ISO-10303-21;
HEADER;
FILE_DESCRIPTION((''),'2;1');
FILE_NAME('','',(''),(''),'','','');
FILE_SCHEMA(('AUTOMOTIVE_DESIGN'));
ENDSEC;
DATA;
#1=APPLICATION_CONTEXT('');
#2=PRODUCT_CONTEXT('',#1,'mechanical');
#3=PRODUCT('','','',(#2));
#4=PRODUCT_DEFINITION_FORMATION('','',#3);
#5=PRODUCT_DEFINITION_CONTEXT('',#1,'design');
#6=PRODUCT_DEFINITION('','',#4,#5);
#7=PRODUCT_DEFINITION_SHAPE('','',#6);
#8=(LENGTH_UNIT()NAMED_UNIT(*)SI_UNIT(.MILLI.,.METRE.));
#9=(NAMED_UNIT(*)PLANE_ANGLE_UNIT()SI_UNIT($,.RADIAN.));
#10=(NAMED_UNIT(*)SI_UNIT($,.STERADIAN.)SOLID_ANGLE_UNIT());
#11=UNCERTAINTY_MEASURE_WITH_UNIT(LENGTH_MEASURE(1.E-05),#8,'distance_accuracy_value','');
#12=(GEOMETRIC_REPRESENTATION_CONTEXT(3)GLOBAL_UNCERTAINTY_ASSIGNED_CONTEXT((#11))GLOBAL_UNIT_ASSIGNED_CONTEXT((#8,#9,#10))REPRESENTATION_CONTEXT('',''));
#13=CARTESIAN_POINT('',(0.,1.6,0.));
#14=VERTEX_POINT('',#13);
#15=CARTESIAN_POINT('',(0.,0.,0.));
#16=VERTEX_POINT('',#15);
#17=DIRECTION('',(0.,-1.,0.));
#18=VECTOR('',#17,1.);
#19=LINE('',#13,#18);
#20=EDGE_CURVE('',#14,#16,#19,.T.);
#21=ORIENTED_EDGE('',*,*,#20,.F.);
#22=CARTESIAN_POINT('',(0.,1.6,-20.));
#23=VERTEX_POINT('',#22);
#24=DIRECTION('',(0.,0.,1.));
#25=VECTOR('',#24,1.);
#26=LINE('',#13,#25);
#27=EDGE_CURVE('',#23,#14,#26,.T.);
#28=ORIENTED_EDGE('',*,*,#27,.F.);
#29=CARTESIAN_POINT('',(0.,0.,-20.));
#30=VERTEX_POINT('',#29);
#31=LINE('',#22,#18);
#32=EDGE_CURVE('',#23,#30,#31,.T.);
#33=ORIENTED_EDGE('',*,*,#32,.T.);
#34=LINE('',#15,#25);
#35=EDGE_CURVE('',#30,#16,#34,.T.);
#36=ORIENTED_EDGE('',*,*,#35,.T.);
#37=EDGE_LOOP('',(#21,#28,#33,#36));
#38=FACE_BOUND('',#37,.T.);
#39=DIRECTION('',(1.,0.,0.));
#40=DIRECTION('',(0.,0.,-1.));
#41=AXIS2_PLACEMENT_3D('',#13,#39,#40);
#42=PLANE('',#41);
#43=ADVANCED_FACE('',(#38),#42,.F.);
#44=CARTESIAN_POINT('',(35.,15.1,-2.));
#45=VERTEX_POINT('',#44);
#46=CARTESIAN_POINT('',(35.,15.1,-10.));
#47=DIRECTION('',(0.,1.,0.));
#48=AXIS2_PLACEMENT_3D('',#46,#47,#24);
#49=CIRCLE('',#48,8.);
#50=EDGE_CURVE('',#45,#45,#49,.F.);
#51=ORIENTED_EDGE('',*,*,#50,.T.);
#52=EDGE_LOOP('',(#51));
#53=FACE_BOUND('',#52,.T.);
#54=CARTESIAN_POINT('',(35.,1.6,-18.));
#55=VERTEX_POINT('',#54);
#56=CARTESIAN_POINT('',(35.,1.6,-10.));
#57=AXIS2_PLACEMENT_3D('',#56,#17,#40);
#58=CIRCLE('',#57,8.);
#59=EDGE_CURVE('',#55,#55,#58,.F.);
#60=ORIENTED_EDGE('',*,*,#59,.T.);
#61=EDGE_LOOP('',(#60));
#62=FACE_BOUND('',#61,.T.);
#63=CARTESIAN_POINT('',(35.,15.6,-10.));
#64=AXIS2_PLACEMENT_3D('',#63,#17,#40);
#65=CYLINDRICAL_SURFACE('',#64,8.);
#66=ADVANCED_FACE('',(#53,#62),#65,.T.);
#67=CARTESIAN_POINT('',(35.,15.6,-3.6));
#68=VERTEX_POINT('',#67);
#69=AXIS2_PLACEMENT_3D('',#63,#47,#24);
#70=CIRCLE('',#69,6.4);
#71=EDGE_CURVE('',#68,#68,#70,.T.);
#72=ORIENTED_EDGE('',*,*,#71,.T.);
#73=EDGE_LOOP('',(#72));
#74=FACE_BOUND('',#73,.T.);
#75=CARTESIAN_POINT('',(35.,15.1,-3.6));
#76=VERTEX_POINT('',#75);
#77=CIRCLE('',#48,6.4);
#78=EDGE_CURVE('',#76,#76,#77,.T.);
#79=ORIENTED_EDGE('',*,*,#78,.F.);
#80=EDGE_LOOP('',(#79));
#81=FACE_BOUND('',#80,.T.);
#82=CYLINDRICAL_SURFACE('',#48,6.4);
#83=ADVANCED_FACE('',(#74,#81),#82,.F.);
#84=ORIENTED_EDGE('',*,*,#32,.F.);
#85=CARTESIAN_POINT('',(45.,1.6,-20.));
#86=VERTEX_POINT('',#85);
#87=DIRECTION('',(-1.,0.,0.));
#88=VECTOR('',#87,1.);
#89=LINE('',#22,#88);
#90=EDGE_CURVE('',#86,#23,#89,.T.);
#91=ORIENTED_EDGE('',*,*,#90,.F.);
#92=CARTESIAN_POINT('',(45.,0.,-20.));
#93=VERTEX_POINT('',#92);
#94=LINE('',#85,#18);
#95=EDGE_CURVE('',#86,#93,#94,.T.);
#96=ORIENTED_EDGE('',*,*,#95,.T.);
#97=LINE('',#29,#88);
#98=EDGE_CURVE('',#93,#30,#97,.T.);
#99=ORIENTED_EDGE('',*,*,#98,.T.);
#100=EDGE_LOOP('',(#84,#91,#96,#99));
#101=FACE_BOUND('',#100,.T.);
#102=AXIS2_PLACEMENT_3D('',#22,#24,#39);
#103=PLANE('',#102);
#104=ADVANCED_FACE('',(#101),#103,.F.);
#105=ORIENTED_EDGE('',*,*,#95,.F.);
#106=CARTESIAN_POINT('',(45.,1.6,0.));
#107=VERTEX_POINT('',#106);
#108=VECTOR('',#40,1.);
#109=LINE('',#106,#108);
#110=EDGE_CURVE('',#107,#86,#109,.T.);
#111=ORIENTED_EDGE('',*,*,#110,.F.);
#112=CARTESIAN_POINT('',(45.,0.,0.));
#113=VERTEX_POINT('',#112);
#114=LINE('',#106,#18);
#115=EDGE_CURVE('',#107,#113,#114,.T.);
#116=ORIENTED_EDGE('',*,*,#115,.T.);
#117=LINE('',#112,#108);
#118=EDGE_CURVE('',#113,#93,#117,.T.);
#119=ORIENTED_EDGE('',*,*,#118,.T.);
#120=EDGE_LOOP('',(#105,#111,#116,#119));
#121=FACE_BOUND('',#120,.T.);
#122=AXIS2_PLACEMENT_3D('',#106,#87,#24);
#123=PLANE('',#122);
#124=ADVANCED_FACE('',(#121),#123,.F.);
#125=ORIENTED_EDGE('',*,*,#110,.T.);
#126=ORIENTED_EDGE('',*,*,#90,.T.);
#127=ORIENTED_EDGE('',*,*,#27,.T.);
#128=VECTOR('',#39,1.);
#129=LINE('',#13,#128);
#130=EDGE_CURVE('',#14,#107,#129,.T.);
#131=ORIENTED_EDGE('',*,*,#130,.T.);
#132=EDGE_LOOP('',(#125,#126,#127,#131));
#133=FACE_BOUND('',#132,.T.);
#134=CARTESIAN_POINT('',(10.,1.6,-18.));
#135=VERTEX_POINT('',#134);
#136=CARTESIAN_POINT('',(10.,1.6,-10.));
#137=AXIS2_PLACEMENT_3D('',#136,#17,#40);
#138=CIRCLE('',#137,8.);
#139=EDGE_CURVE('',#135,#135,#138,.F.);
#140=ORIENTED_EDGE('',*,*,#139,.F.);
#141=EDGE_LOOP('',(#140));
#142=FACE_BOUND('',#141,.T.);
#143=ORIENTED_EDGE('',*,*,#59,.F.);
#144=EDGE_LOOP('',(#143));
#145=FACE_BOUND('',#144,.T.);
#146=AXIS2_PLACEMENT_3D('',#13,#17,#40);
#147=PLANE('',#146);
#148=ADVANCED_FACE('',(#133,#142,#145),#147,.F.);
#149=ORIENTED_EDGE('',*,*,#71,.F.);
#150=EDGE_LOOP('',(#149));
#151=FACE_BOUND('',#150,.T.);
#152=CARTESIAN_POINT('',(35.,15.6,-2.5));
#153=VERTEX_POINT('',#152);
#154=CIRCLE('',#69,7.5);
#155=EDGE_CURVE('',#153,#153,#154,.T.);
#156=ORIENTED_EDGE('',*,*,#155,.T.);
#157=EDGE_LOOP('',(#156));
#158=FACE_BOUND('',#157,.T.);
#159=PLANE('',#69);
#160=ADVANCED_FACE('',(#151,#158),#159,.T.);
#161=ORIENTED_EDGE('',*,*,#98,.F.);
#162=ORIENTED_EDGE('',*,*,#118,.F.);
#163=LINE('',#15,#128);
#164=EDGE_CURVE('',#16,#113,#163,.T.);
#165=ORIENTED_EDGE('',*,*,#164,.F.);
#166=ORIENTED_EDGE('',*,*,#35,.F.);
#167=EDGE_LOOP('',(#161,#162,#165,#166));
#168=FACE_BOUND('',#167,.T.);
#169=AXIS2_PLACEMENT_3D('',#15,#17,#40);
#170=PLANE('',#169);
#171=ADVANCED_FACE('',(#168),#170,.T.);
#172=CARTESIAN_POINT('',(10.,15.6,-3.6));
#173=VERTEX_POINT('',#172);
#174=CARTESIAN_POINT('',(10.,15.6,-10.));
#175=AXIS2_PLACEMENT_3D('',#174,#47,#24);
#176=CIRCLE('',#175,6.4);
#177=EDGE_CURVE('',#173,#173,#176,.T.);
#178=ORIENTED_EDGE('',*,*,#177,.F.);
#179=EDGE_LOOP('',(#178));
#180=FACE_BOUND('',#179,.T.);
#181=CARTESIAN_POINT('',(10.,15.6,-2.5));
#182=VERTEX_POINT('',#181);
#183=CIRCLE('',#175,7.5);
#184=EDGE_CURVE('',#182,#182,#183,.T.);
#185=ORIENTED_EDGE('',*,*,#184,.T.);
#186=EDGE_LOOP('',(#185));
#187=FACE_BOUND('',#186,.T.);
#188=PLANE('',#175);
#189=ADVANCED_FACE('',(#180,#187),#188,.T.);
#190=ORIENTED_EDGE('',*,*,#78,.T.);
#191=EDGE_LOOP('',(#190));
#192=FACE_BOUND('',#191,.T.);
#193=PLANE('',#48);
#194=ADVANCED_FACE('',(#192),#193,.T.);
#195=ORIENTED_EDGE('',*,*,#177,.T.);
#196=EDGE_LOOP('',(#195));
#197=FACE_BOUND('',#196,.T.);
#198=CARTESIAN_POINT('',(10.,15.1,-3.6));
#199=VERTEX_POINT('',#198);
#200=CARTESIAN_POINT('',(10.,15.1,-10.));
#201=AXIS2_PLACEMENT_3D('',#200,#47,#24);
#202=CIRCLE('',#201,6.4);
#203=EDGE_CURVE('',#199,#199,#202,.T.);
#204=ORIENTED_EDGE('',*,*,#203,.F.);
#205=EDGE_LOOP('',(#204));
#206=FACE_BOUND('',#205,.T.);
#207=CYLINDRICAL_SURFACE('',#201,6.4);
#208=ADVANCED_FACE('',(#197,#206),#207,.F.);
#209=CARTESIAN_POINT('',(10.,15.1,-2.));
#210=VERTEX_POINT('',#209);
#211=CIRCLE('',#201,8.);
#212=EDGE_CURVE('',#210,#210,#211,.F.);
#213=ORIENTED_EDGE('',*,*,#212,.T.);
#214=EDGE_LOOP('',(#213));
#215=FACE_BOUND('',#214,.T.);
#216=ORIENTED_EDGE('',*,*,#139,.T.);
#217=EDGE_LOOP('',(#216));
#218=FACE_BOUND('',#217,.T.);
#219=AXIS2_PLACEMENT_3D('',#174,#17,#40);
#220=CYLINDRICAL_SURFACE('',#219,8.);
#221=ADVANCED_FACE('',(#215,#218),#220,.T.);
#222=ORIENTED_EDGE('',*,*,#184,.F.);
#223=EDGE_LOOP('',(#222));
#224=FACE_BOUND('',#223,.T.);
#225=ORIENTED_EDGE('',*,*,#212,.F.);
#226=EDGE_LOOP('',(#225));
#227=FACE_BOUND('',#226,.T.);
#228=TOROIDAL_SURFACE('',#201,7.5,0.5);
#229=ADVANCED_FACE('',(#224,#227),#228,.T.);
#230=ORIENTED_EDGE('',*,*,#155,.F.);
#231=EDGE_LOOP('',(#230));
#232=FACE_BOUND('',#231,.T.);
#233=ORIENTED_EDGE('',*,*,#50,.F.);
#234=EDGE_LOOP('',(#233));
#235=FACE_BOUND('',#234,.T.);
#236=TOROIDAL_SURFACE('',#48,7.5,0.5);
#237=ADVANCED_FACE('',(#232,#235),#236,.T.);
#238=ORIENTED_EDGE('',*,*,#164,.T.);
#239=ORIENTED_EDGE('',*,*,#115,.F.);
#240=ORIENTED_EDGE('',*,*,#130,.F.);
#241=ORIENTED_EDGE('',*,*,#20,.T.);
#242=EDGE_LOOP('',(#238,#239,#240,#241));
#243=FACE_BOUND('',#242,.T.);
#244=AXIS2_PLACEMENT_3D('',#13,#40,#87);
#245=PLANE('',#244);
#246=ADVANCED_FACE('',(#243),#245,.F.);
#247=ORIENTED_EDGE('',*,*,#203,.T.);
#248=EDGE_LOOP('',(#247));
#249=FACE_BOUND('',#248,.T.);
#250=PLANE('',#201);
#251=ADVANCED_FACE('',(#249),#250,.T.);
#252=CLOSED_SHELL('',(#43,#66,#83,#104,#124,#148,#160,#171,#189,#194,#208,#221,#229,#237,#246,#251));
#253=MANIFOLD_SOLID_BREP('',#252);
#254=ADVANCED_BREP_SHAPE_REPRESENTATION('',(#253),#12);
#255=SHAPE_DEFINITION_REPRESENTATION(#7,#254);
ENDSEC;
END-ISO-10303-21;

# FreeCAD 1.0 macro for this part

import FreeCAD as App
import Part
import Sketcher
from FreeCAD import Vector
Q = App.Units.Quantity


def edges_at(feature, points):
    """Names of the edges that pass closest to the given points."""
    edges = feature.Shape.Edges
    near = lambda p: min(range(len(edges)), key=lambda i: edges[i].distToShape(Part.Vertex(*p))[0])
    return sorted({f"Edge{near(p) + 1}" for p in points})

doc = App.newDocument("Part")
body = doc.addObject("PartDesign::Body", "Body")

sketch1 = doc.addObject("Sketcher::SketchObject", "Sketch")
body.addObject(sketch1)
sketch1.AttachmentSupport = (doc.XZ_Plane, [""])
sketch1.MapMode = "FlatFace"
sketch1.addGeometry([
    Part.LineSegment(Vector(0, -20, 0), Vector(0, 0, 0)),
    Part.LineSegment(Vector(0, 0, 0), Vector(45, 0, 0)),
    Part.LineSegment(Vector(45, 0, 0), Vector(45, -20, 0)),
    Part.LineSegment(Vector(45, -20, 0), Vector(0, -20, 0)),
], False)
sketch1.addConstraint([
    Sketcher.Constraint("Coincident", 0, 2, 1, 1),
    Sketcher.Constraint("Coincident", 1, 2, 2, 1),
    Sketcher.Constraint("Coincident", 2, 2, 3, 1),
    Sketcher.Constraint("Coincident", 3, 2, 0, 1),
    Sketcher.Constraint("Vertical", 0),
    Sketcher.Constraint("Horizontal", 1),
    Sketcher.Constraint("Vertical", 2),
    Sketcher.Constraint("Horizontal", 3),
    Sketcher.Constraint("Coincident", 0, 2, -1, 1),
    Sketcher.Constraint("DistanceX", 1, 1, 1, 2, Q("45 mm")),
    Sketcher.Constraint("DistanceY", 0, 1, 0, 2, Q("20 mm")),
])
pad1 = doc.addObject("PartDesign::Pad", "Pad")
body.addObject(pad1)
pad1.Profile = sketch1
pad1.Length = 1.6
pad1.Reversed = True

sketch2 = doc.addObject("Sketcher::SketchObject", "Sketch001")
body.addObject(sketch2)
sketch2.AttachmentSupport = (doc.XZ_Plane, [""])
sketch2.MapMode = "FlatFace"
sketch2.AttachmentOffset = App.Placement(Vector(0, 0, -1.6), App.Rotation())
sketch2.addGeometry([
    Part.Circle(Vector(10, -10, 0), Vector(0, 0, 1), 8),
    Part.Circle(Vector(35, -10, 0), Vector(0, 0, 1), 8),
], False)
sketch2.addConstraint([
    Sketcher.Constraint("Equal", 0, 1),
    Sketcher.Constraint("Horizontal", 0, 3, 1, 3),
    Sketcher.Constraint("Diameter", 0, Q("16 mm")),
    Sketcher.Constraint("DistanceX", -1, 1, 0, 3, Q("10 mm")),
    Sketcher.Constraint("DistanceY", 0, 3, -1, 1, Q("10 mm")),
    Sketcher.Constraint("DistanceX", -1, 1, 1, 3, Q("35 mm")),
])
pad2 = doc.addObject("PartDesign::Pad", "Pad001")
body.addObject(pad2)
pad2.Profile = sketch2
pad2.Length = 14
pad2.Reversed = True

sketch3 = doc.addObject("Sketcher::SketchObject", "Sketch002")
body.addObject(sketch3)
sketch3.AttachmentSupport = (doc.XZ_Plane, [""])
sketch3.MapMode = "FlatFace"
sketch3.AttachmentOffset = App.Placement(Vector(0, 0, -15.6), App.Rotation())
sketch3.addGeometry([
    Part.Circle(Vector(10, -10, 0), Vector(0, 0, 1), 6),
    Part.Circle(Vector(35, -10, 0), Vector(0, 0, 1), 6),
], False)
sketch3.addConstraint([
    Sketcher.Constraint("Equal", 0, 1),
    Sketcher.Constraint("Horizontal", 0, 3, 1, 3),
    Sketcher.Constraint("Diameter", 0, Q("12.8 mm")),
    Sketcher.Constraint("DistanceX", -1, 1, 0, 3, Q("10 mm")),
    Sketcher.Constraint("DistanceY", 0, 3, -1, 1, Q("10 mm")),
    Sketcher.Constraint("DistanceX", -1, 1, 1, 3, Q("35 mm")),
])
pocket1 = doc.addObject("PartDesign::Pocket", "Pocket")
body.addObject(pocket1)
pocket1.Profile = sketch3
pocket1.Length = 0.5
pocket1.Reversed = True
doc.recompute()

fillet = doc.addObject("PartDesign::Fillet", "Fillet")
body.addObject(fillet)
fillet.Base = (pocket1, edges_at(pocket1, [(2, 15.6, -10), (27, 15.6, -10)]))
fillet.Radius = 0.5

doc.recompute()
